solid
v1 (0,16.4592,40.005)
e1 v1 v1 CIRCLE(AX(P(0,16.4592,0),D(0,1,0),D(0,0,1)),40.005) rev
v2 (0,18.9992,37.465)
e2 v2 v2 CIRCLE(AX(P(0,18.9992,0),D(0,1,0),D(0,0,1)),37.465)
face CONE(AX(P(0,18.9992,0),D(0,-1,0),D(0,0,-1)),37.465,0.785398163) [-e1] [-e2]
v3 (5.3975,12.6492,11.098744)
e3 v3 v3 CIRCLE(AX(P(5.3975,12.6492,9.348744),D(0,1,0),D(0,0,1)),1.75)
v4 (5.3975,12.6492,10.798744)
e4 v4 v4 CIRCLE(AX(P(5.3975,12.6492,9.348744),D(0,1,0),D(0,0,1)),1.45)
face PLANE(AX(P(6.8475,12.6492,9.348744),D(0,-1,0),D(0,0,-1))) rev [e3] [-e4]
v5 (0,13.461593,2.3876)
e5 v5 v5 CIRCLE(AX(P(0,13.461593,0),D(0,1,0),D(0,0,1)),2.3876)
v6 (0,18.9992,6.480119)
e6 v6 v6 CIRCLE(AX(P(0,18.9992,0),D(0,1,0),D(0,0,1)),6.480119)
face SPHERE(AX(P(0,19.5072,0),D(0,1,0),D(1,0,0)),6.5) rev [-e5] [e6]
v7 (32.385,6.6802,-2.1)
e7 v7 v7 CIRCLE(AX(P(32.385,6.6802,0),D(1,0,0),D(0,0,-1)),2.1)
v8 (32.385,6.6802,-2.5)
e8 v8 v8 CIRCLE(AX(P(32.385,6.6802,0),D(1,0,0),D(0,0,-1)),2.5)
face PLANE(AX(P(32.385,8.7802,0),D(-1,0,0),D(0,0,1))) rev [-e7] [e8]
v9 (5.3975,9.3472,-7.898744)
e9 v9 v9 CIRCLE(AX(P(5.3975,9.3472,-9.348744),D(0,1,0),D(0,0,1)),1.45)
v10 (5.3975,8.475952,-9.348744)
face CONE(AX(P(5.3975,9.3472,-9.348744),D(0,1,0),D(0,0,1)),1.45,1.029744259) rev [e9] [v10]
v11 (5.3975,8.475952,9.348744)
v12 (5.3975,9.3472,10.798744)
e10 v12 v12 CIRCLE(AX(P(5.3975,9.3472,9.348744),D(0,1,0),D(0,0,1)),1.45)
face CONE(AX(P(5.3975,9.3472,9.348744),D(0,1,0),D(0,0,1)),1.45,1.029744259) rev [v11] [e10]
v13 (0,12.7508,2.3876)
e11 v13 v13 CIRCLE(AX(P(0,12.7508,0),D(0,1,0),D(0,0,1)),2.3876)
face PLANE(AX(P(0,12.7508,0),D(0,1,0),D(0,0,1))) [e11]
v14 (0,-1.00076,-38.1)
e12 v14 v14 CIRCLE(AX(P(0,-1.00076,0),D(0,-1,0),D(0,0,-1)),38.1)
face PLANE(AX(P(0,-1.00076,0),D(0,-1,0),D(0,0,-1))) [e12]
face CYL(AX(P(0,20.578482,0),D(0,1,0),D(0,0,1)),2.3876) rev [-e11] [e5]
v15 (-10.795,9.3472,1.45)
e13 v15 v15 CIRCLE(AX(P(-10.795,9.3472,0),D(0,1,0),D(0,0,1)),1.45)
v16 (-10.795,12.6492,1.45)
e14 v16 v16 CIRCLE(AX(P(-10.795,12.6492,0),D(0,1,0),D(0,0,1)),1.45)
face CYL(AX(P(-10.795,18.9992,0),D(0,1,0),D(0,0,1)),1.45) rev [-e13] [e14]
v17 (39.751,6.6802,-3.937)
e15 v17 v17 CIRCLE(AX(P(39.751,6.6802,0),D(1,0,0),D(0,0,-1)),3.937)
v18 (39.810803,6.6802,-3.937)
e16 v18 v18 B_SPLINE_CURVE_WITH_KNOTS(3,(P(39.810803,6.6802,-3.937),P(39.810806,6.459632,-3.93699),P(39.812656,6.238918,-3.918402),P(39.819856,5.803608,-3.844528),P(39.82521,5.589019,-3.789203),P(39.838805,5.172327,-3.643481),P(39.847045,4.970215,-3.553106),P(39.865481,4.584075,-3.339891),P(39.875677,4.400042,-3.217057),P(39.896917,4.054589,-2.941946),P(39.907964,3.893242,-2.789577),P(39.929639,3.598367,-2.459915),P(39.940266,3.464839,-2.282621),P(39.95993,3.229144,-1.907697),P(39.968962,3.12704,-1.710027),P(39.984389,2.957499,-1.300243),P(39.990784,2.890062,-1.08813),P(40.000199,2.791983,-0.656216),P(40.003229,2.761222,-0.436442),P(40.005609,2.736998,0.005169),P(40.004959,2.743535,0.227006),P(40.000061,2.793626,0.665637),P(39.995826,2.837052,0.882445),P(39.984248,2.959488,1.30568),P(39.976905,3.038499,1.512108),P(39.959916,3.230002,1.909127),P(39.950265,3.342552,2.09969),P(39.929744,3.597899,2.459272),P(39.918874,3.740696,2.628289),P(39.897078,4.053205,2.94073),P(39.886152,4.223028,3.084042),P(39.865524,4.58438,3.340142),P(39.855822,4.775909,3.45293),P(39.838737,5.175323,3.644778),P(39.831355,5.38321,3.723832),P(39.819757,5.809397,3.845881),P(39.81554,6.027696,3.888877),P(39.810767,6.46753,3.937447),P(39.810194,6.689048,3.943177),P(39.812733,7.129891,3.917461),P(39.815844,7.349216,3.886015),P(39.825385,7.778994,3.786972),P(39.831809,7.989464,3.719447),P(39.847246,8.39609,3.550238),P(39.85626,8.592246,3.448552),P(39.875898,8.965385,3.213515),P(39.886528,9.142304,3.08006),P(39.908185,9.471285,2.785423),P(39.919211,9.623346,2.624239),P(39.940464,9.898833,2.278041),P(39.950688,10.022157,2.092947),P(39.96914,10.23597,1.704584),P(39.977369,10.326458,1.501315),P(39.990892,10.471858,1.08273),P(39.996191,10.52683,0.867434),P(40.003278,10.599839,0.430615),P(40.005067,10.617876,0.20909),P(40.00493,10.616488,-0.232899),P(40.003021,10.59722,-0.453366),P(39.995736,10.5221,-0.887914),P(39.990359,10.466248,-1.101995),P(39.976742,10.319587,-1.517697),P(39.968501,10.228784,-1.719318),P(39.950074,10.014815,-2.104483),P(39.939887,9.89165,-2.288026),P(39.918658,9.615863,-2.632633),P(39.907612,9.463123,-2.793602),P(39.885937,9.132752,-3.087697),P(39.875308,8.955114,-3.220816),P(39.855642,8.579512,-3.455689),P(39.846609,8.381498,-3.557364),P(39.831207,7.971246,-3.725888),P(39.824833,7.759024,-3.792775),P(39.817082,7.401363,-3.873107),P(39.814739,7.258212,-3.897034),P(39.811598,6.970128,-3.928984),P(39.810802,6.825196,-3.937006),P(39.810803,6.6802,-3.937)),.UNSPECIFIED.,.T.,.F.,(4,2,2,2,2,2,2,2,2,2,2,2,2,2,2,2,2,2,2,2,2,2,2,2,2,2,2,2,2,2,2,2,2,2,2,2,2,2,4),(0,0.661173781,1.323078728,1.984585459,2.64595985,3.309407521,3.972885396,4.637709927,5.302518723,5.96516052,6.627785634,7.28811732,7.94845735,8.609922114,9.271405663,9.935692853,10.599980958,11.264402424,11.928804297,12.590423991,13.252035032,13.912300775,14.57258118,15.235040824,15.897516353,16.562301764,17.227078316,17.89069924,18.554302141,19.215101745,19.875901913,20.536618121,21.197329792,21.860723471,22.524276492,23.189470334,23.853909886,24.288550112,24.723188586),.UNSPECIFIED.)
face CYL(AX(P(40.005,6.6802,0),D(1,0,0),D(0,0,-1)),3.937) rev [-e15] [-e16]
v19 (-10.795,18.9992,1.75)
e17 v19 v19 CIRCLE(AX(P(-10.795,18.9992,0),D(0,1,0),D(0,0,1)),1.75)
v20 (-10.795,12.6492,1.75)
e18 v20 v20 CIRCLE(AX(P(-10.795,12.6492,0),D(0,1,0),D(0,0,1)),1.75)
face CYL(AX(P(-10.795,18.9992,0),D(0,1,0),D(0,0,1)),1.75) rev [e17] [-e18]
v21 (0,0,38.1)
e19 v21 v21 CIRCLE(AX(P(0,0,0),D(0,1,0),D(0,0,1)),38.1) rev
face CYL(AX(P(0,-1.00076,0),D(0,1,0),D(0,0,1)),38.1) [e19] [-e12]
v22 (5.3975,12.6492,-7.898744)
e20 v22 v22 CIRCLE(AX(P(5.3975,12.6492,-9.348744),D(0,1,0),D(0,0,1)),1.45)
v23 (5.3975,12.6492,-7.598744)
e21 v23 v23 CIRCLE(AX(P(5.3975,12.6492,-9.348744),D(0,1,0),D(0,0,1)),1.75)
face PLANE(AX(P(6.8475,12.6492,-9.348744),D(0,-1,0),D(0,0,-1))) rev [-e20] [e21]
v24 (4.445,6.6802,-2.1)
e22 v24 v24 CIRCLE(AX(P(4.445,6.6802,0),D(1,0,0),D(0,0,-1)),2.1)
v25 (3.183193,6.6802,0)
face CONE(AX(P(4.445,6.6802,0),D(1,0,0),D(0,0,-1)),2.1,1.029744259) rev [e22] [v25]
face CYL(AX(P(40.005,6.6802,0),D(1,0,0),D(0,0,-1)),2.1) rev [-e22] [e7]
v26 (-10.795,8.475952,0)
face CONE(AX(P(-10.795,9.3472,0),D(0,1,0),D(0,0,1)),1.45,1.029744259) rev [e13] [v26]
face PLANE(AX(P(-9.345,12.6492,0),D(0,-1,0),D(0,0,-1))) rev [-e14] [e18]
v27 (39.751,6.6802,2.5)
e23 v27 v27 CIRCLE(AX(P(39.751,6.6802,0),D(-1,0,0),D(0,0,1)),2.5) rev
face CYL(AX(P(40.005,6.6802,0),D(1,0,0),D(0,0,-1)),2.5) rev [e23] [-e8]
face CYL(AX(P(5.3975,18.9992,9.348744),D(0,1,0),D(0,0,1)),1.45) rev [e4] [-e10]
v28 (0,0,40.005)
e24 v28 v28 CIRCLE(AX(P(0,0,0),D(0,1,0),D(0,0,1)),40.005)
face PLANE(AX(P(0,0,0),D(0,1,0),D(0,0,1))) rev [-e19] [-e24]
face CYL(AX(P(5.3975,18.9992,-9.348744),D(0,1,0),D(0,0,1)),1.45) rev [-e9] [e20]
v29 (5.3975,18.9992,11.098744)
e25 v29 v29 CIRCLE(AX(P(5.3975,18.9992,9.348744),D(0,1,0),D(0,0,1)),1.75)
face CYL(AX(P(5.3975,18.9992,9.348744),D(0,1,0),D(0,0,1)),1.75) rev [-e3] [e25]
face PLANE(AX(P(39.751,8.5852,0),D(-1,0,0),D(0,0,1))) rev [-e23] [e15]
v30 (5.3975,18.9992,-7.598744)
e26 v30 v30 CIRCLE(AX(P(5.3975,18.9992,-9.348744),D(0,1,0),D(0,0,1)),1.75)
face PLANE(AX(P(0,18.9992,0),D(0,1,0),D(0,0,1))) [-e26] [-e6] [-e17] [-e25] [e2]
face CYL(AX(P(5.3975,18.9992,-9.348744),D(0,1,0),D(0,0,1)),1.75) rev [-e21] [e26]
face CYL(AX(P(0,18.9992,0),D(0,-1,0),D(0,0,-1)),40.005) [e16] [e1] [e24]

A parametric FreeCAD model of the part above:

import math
import FreeCAD as App
import Part
import Sketcher

V = App.Vector
Q = App.Units.Quantity


def edges_at(feature, points):
    """Names of the edges that pass closest to the given points."""
    edges = feature.Shape.Edges
    near = lambda p: min(range(len(edges)), key=lambda i: edges[i].distToShape(Part.Vertex(*p))[0])
    return sorted({f"Edge{near(p) + 1}" for p in points})


def add_polygon(sketch, points):
    """Adds a closed chain of lines whose ends are joined by coincident constraints."""
    first, n = sketch.GeometryCount, len(points)
    for a, b in zip(points, points[1:] + points[:1]):
        sketch.addGeometry(Part.LineSegment(App.Vector(*a, 0), App.Vector(*b, 0)), False)
    for i in range(n):
        sketch.addConstraint(Sketcher.Constraint("Coincident", first + i, 2, first + (i + 1) % n, 1))

doc = App.newDocument("Part")
body = doc.addObject("PartDesign::Body", "Body")

sketch1 = doc.addObject("Sketcher::SketchObject", "Sketch")
body.addObject(sketch1)
sketch1.AttachmentSupport = (doc.XZ_Plane, [""])
sketch1.MapMode = "FlatFace"
sketch1.addGeometry(Part.Circle(V(0, 0, 0), V(0, 0, 1), 40), False)
sketch1.addConstraint(Sketcher.Constraint("Coincident", 0, 3, -1, 1))
sketch1.addConstraint(Sketcher.Constraint("Diameter", 0, Q("3.15 in")))
pad1 = doc.addObject("PartDesign::Pad", "Pad")
body.addObject(pad1)
pad1.Profile = sketch1
pad1.Length = Q("0.748 in")
pad1.Reversed = True

sketch2 = doc.addObject("Sketcher::SketchObject", "Sketch001")
body.addObject(sketch2)
sketch2.AttachmentSupport = (doc.YZ_Plane, [""])
sketch2.MapMode = "FlatFace"
sketch2.AttachmentOffset = App.Placement(V(0, 0, 1.575 * 25.4), App.Rotation())
sketch2.addGeometry(Part.Circle(V(6.7, 0, 0), V(0, 0, 1), 2.1), False)
sketch2.addConstraint(Sketcher.Constraint("PointOnObject", 0, 3, -1))
sketch2.addConstraint(Sketcher.Constraint("Diameter", 0, 4.2))
sketch2.addConstraint(Sketcher.Constraint("DistanceX", -1, 1, 0, 3, Q("0.263 in")))
doc.recompute()
hole = doc.addObject("PartDesign::Hole", "Hole")
body.addObject(hole)
hole.Profile = sketch2
hole.ThreadType = "None"
hole.Diameter = 4.2
hole.DepthType = "Dimension"
hole.Depth = Q("1.4 in")
hole.DrillPoint = "Angled"
hole.DrillPointAngle = 118
hole.HoleCutType = "Counterbore"
hole.HoleCutDiameter = 5
hole.HoleCutDepth = Q("0.3 in")

sketch3 = doc.addObject("Sketcher::SketchObject", "Sketch002")
body.addObject(sketch3)
sketch3.AttachmentSupport = (doc.YZ_Plane, [""])
sketch3.MapMode = "FlatFace"
sketch3.AttachmentOffset = App.Placement(V(0, 0, 1.575 * 25.4), App.Rotation())
sketch3.addGeometry(Part.Circle(V(6.7, 0, 0), V(0, 0, 1), 1.9), False)
sketch3.addConstraint(Sketcher.Constraint("PointOnObject", 0, 3, -1))
sketch3.addConstraint(Sketcher.Constraint("Diameter", 0, Q("0.15 in")))
sketch3.addConstraint(Sketcher.Constraint("DistanceX", -1, 1, 0, 3, Q("0.263 in")))
doc.recompute()
hole2 = doc.addObject("PartDesign::Hole", "Hole001")
body.addObject(hole2)
hole2.Profile = sketch3
hole2.ThreadType = "None"
hole2.Diameter = Q("0.15 in")
hole2.DepthType = "Dimension"
hole2.Depth = Q("0.25 in")
hole2.DrillPoint = "Angled"
hole2.DrillPointAngle = 118
hole2.HoleCutType = "Counterbore"
hole2.HoleCutDiameter = Q("0.31 in")
hole2.HoleCutDepth = Q("0.01 in")
doc.recompute()

chamfer = doc.addObject("PartDesign::Chamfer", "Chamfer")
body.addObject(chamfer)
chamfer.Base = (hole2, edges_at(hole2, [(0, 18.999, -40.005)]))
chamfer.Size = Q("0.1 in")

sketch4 = doc.addObject("Sketcher::SketchObject", "Sketch003")
body.addObject(sketch4)
sketch4.AttachmentSupport = (doc.YZ_Plane, [""])
sketch4.MapMode = "FlatFace"
sketch4.AttachmentOffset = App.Placement(V(0, 0, -0.425 * 25.4), App.Rotation())
add_polygon(sketch4, [(8.48, 0), (19, 0), (19, 1.75), (12.65, 1.75), (12.65, 1.45), (9.35, 1.45)])
sketch4.addConstraint(Sketcher.Constraint("Horizontal", 0))
sketch4.addConstraint(Sketcher.Constraint("Vertical", 1))
sketch4.addConstraint(Sketcher.Constraint("Horizontal", 2))
sketch4.addConstraint(Sketcher.Constraint("Vertical", 3))
sketch4.addConstraint(Sketcher.Constraint("Horizontal", 4))
sketch4.addConstraint(Sketcher.Constraint("PointOnObject", 0, 2, -1))
sketch4.addConstraint(Sketcher.Constraint("Angle", 5, Q("-121 deg")))
sketch4.addConstraint(Sketcher.Constraint("DistanceX", 2, 2, 2, 1, Q("0.25 in")))
sketch4.addConstraint(Sketcher.Constraint("DistanceX", 4, 2, 4, 1, Q("0.13 in")))
sketch4.addConstraint(Sketcher.Constraint("DistanceX", -1, 1, 0, 2, Q("0.748 in")))
sketch4.addConstraint(Sketcher.Constraint("DistanceY", 1, 1, 1, 2, 1.75))
sketch4.addConstraint(Sketcher.Constraint("DistanceY", 3, 2, 3, 1, 0.3))
groove = doc.addObject("PartDesign::Groove", "Groove")
body.addObject(groove)
groove.Profile = sketch4
groove.ReferenceAxis = (sketch4, ["H_Axis"])
groove.Angle = 360
doc.recompute()

polarpattern = doc.addObject("PartDesign::PolarPattern", "PolarPattern")
body.addObject(polarpattern)
polarpattern.Originals = [groove]
polarpattern.Axis = (doc.Y_Axis, [""])
polarpattern.Angle = 360
polarpattern.Occurrences = 3
body.Tip = polarpattern

sketch5 = doc.addObject("Sketcher::SketchObject", "Sketch004")
body.addObject(sketch5)
sketch5.AttachmentSupport = (doc.XZ_Plane, [""])
sketch5.MapMode = "FlatFace"
sketch5.addGeometry(Part.Circle(V(0, 0, 0), V(0, 0, 1), 38), False)
sketch5.addConstraint(Sketcher.Constraint("Coincident", 0, 3, -1, 1))
sketch5.addConstraint(Sketcher.Constraint("Diameter", 0, Q("3 in")))
pad2 = doc.addObject("PartDesign::Pad", "Pad001")
body.addObject(pad2)
pad2.Profile = sketch5
pad2.Length = Q("0.0394 in")

sketch6 = doc.addObject("Sketcher::SketchObject", "Sketch005")
body.addObject(sketch6)
sketch6.AttachmentSupport = (doc.XY_Plane, [""])
sketch6.MapMode = "FlatFace"
sketch6.addGeometry(Part.LineSegment(V(0, 19, 0), V(0, 12.8, 0)), False)
sketch6.addGeometry(Part.LineSegment(V(0, 12.8, 0), V(2.4, 12.8, 0)), False)
sketch6.addGeometry(Part.LineSegment(V(2.4, 12.8, 0), V(2.4, 13.5, 0)), False)
sketch6.addGeometry(Part.ArcOfCircle(Part.Circle(V(0, 19.5, 0), V(0, 0, 1), 6.5), math.radians(-68), math.radians(-4)), False)
sketch6.addGeometry(Part.LineSegment(V(6.5, 19, 0), V(0, 19, 0)), False)
sketch6.addConstraint(Sketcher.Constraint("Coincident", 0, 2, 1, 1))
sketch6.addConstraint(Sketcher.Constraint("Coincident", 1, 2, 2, 1))
sketch6.addConstraint(Sketcher.Constraint("Coincident", 2, 2, 3, 1))
sketch6.addConstraint(Sketcher.Constraint("Coincident", 3, 2, 4, 1))
sketch6.addConstraint(Sketcher.Constraint("Coincident", 4, 2, 0, 1))
sketch6.addConstraint(Sketcher.Constraint("Vertical", 0))
sketch6.addConstraint(Sketcher.Constraint("Horizontal", 1))
sketch6.addConstraint(Sketcher.Constraint("Vertical", 2))
sketch6.addConstraint(Sketcher.Constraint("Horizontal", 4))
sketch6.addConstraint(Sketcher.Constraint("PointOnObject", 3, 3, -2))
sketch6.addConstraint(Sketcher.Constraint("PointOnObject", 0, 2, -2))
sketch6.addConstraint(Sketcher.Constraint("DistanceX", 1, 1, 1, 2, Q("0.094 in")))
sketch6.addConstraint(Sketcher.Constraint("DistanceY", 0, 2, 0, 1, Q("0.246 in")))
sketch6.addConstraint(Sketcher.Constraint("Radius", 3, 6.5))
sketch6.addConstraint(Sketcher.Constraint("DistanceY", 3, 2, 3, 3, Q("0.02 in")))
sketch6.addConstraint(Sketcher.Constraint("DistanceY", -1, 1, 3, 3, Q("0.768 in")))
groove2 = doc.addObject("PartDesign::Groove", "Groove001")
body.addObject(groove2)
groove2.Profile = sketch6
groove2.ReferenceAxis = (sketch6, ["V_Axis"])
groove2.Angle = 360

doc.recompute()
